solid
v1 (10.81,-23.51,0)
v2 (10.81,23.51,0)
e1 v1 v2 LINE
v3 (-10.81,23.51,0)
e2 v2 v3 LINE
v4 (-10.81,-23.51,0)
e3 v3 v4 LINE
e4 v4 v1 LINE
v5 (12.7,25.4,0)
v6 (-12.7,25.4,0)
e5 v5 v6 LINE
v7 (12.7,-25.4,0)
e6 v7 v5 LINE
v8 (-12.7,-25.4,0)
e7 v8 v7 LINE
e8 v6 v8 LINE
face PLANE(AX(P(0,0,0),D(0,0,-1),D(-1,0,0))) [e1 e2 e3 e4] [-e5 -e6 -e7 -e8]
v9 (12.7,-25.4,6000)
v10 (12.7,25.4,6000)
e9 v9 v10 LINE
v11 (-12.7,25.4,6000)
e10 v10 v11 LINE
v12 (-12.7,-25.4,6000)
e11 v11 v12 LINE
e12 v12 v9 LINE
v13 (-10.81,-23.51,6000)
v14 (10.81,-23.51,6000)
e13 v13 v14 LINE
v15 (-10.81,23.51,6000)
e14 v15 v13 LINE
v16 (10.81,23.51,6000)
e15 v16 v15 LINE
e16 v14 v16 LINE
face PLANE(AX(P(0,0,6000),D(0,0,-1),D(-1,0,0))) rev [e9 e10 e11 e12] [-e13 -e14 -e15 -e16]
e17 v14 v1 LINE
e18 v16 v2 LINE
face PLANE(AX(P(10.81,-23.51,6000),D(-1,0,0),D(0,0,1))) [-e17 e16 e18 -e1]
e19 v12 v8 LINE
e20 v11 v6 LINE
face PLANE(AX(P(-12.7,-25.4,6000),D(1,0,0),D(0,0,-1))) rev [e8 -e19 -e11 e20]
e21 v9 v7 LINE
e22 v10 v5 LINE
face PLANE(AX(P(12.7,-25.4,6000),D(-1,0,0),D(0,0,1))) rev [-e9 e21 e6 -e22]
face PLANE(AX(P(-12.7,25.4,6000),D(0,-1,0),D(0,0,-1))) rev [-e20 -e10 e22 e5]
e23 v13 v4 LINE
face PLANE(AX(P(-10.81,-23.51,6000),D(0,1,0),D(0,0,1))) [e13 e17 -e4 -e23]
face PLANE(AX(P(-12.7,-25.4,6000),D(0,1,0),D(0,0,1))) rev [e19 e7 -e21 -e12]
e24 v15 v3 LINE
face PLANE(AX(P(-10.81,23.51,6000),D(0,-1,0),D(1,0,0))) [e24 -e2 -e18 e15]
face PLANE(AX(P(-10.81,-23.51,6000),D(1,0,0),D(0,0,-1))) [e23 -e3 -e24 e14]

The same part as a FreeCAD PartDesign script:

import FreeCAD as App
import Part
import Sketcher
from FreeCAD import Vector
Q = App.Units.Quantity


def add_polygon(sketch, points):
    """Adds a closed chain of lines whose ends are joined by coincident constraints."""
    first, n = sketch.GeometryCount, len(points)
    for a, b in zip(points, points[1:] + points[:1]):
        sketch.addGeometry(Part.LineSegment(App.Vector(*a, 0), App.Vector(*b, 0)), False)
    for i in range(n):
        sketch.addConstraint(Sketcher.Constraint("Coincident", first + i, 2, first + (i + 1) % n, 1))

doc = App.newDocument("Part")
body = doc.addObject("PartDesign::Body", "Body")

# Sketch on XY plane
sketch1 = body.newObject("Sketcher::SketchObject", "Sketch")
sketch1.AttachmentSupport = (doc.getObject("XY_Plane"), [""])
sketch1.MapMode = "FlatFace"
add_polygon(sketch1, [(-13, 25), (-13, -25), (13, -25), (13, 25)])  # lines 0-3
add_polygon(sketch1, [(11, -24), (-11, -24), (-11, 24), (11, 24)])  # lines 4-7
sketch1.addConstraint([
    Sketcher.Constraint("Vertical", 0),
    Sketcher.Constraint("Horizontal", 1),
    Sketcher.Constraint("Vertical", 2),
    Sketcher.Constraint("Horizontal", 3),
    Sketcher.Constraint("Horizontal", 4),
    Sketcher.Constraint("Vertical", 5),
    Sketcher.Constraint("Horizontal", 6),
    Sketcher.Constraint("Vertical", 7),
    Sketcher.Constraint("Symmetric", 0, 2, 2, 2, -1, 1),
    Sketcher.Constraint("Symmetric", 4, 2, 6, 2, -1, 1),
    Sketcher.Constraint("DistanceX", 1, 1, 1, 2, Q("1 in")),
    Sketcher.Constraint("DistanceY", 0, 2, 0, 1, Q("2 in")),
    Sketcher.Constraint("DistanceX", 4, 2, 4, 1, Q("21.62 mm")),
    Sketcher.Constraint("DistanceY", 5, 1, 5, 2, Q("47.02 mm")),
])
pad1 = body.newObject("PartDesign::Pad", "Pad")
pad1.Profile = sketch1
pad1.Length = 6000

doc.recompute()
